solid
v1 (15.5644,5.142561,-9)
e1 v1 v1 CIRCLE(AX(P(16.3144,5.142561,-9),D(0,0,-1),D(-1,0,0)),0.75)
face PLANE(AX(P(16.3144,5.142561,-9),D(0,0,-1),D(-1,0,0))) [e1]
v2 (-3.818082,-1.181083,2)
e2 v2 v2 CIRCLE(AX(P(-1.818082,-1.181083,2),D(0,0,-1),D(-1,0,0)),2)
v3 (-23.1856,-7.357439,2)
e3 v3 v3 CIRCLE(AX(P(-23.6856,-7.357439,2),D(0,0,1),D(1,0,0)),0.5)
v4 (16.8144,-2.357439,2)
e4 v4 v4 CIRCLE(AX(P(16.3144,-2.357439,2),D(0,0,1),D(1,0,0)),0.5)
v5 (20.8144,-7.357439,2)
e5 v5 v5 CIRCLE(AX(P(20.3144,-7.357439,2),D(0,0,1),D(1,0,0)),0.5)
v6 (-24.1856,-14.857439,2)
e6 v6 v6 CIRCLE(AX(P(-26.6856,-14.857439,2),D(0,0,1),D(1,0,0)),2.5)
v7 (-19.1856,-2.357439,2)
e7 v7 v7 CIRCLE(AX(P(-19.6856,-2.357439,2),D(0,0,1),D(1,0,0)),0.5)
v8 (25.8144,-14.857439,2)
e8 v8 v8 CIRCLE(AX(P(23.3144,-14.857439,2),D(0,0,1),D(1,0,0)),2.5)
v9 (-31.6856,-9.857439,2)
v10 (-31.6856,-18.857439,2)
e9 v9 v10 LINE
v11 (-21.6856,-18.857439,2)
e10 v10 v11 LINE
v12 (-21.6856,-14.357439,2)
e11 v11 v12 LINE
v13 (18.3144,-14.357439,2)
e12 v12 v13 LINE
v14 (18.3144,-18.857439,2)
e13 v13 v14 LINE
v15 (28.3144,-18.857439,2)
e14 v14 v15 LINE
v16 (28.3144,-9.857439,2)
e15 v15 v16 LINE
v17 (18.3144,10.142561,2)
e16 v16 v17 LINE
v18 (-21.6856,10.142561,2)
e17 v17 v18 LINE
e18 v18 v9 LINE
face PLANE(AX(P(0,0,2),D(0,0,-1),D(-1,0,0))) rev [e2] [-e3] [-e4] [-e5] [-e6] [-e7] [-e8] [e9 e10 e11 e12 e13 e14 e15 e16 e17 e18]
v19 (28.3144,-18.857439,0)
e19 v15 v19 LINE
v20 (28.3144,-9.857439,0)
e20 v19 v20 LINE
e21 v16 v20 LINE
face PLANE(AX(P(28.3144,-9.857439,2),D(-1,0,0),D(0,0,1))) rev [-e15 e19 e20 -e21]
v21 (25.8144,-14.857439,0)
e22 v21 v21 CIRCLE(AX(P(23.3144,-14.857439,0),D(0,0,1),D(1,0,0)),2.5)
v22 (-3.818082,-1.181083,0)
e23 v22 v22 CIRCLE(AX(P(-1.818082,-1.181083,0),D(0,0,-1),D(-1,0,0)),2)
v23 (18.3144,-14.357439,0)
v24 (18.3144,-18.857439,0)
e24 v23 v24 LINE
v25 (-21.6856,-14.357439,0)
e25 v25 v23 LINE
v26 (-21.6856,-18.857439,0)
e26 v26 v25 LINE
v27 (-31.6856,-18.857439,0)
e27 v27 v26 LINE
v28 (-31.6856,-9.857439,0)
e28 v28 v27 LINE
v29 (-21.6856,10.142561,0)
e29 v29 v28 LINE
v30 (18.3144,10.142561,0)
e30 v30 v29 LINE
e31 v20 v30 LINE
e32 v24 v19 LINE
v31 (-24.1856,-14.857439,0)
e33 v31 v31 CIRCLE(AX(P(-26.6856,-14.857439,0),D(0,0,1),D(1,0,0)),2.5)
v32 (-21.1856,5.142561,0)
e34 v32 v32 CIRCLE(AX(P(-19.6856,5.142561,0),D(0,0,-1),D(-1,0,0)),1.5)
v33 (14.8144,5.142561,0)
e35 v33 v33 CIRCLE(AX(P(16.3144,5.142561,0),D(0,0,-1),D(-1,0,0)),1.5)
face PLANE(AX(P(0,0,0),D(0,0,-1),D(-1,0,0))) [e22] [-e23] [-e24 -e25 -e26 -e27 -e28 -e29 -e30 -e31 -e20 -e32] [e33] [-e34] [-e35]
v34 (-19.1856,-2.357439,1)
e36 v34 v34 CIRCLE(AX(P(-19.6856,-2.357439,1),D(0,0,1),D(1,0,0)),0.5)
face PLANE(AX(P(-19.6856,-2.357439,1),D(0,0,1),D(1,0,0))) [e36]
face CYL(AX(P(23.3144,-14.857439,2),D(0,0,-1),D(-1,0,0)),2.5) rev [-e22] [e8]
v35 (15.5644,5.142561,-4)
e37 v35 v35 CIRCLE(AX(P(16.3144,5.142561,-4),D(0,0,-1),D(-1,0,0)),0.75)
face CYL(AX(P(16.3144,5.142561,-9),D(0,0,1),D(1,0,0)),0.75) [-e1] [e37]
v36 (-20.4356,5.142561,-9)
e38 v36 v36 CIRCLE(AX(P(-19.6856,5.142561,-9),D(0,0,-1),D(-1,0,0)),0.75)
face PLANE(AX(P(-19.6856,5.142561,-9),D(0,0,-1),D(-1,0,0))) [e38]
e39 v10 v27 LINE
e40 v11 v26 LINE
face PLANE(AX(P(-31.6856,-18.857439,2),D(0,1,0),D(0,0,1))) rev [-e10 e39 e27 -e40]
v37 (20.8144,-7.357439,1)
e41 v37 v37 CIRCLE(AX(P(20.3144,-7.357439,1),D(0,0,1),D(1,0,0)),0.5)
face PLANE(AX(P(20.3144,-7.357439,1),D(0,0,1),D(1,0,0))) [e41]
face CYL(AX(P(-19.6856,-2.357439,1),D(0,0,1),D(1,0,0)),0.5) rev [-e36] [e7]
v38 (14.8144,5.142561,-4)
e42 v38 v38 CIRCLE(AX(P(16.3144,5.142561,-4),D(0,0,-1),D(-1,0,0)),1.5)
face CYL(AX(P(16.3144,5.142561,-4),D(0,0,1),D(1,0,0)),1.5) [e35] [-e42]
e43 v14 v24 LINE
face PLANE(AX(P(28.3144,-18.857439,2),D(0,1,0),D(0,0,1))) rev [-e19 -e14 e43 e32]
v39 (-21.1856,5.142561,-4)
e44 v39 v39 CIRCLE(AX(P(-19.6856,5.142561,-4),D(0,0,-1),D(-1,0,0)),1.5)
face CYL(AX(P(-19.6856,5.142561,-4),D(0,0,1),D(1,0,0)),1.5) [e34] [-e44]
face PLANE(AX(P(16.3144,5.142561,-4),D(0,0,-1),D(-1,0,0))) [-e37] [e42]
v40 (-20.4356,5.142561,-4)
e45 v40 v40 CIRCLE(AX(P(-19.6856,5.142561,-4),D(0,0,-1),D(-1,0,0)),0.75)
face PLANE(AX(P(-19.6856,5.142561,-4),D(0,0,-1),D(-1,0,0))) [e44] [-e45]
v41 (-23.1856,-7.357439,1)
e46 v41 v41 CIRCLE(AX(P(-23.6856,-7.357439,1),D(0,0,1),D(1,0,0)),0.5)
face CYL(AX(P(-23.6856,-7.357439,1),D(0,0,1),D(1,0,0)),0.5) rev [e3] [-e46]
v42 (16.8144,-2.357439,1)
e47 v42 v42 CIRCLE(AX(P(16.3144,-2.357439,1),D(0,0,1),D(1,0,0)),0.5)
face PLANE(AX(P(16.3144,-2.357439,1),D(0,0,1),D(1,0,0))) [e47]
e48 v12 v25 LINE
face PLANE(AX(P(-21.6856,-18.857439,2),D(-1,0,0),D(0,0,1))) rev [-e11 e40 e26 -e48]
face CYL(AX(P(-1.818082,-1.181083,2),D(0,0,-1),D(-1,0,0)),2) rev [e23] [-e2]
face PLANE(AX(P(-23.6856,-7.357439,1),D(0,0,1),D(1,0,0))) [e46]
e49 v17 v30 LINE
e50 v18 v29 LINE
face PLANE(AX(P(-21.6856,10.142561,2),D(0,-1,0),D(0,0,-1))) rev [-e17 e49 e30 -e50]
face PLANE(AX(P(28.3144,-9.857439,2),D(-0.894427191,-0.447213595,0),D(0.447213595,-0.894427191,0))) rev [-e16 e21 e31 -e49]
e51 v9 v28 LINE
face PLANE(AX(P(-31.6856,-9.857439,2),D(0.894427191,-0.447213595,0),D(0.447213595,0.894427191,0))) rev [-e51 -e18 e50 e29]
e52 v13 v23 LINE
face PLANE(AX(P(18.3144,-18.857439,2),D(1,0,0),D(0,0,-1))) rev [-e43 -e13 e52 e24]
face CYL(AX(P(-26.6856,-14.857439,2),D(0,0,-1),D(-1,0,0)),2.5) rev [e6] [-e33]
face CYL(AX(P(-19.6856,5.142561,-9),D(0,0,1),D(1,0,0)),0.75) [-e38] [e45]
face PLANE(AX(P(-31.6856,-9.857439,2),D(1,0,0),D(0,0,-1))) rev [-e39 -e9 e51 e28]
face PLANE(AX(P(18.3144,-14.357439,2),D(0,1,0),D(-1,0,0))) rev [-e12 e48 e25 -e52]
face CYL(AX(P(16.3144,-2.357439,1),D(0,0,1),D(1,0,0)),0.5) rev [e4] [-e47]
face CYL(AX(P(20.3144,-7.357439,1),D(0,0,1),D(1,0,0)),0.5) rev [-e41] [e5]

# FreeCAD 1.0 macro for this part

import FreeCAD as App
import Part
import Sketcher

V = App.Vector
Q = App.Units.Quantity


def add_polygon(sketch, points):
    """Adds a closed chain of lines whose ends are joined by coincident constraints."""
    first, n = sketch.GeometryCount, len(points)
    for a, b in zip(points, points[1:] + points[:1]):
        sketch.addGeometry(Part.LineSegment(App.Vector(*a, 0), App.Vector(*b, 0)), False)
    for i in range(n):
        sketch.addConstraint(Sketcher.Constraint("Coincident", first + i, 2, first + (i + 1) % n, 1))

doc = App.newDocument("Part")
body = doc.addObject("PartDesign::Body", "Body")

# Sketch on XY plane
sketch1 = body.newObject("Sketcher::SketchObject", "Sketch")
sketch1.AttachmentSupport = (doc.getObject("XY_Plane"), [""])
sketch1.MapMode = "FlatFace"
add_polygon(sketch1, [(18, 10), (-22, 10), (-32, -10), (-32, -19), (-22, -19), (-22, -10), (18, -10), (18, -19), (28, -19), (28, -10)])  # lines 0-9
sketch1.addConstraint(Sketcher.Constraint("Horizontal", 0))
sketch1.addConstraint(Sketcher.Constraint("Vertical", 2))
sketch1.addConstraint(Sketcher.Constraint("Horizontal", 3))
sketch1.addConstraint(Sketcher.Constraint("Vertical", 4))
sketch1.addConstraint(Sketcher.Constraint("Horizontal", 5))
sketch1.addConstraint(Sketcher.Constraint("Vertical", 6))
sketch1.addConstraint(Sketcher.Constraint("Horizontal", 7))
sketch1.addConstraint(Sketcher.Constraint("Vertical", 8))
sketch1.addConstraint(Sketcher.Constraint("Horizontal", 1, 2, 4, 2))
sketch1.addConstraint(Sketcher.Constraint("Horizontal", 3, 2, 6, 2))
sketch1.addConstraint(Sketcher.Constraint("Horizontal", 5, 2, 8, 2))
sketch1.addConstraint(Sketcher.Constraint("Vertical", 0, 2, 3, 2))
sketch1.addConstraint(Sketcher.Constraint("Vertical", 6, 2, 9, 2))
sketch1.addConstraint(Sketcher.Constraint("Equal", 3, 7))
sketch1.addConstraint(Sketcher.Constraint("DistanceX", 0, 2, 0, 1, Q("40 mm")))
sketch1.addConstraint(Sketcher.Constraint("DistanceX", 3, 1, 3, 2, Q("10 mm")))
sketch1.addConstraint(Sketcher.Constraint("DistanceY", 2, 2, 2, 1, Q("9 mm")))
sketch1.addConstraint(Sketcher.Constraint("DistanceY", 1, 2, 0, 2, Q("20 mm")))
sketch1.addConstraint(Sketcher.Constraint("DistanceX", 0, 2, -1, 1, Q("21.6856 mm")))
sketch1.addConstraint(Sketcher.Constraint("DistanceY", -1, 1, 0, 2, Q("10.142561 mm")))
pad1 = body.newObject("PartDesign::Pad", "Pad")
pad1.Profile = sketch1
pad1.Length = 2

# Sketch on XY plane
sketch2 = body.newObject("Sketcher::SketchObject", "Sketch001")
sketch2.AttachmentSupport = (doc.getObject("XY_Plane"), [""])
sketch2.MapMode = "FlatFace"
sketch2.addGeometry(Part.Circle(V(-26.7, -14.9, 0), V(0, 0, 1), 2.5), False)
sketch2.addGeometry(Part.Circle(V(23.3, -14.9, 0), V(0, 0, 1), 2.5), False)
sketch2.addConstraint(Sketcher.Constraint("Equal", 0, 1))
sketch2.addConstraint(Sketcher.Constraint("Horizontal", 0, 3, 1, 3))
sketch2.addConstraint(Sketcher.Constraint("Diameter", 0, Q("5 mm")))
sketch2.addConstraint(Sketcher.Constraint("DistanceX", 0, 3, 1, 3, Q("50 mm")))
sketch2.addConstraint(Sketcher.Constraint("DistanceX", 0, 3, -1, 1, Q("26.6856 mm")))
sketch2.addConstraint(Sketcher.Constraint("DistanceY", 0, 3, -1, 1, Q("14.857439 mm")))
pocket1 = body.newObject("PartDesign::Pocket", "Pocket")
pocket1.Profile = sketch2
pocket1.Type = "ThroughAll"
pocket1.Reversed = True

# Sketch on XY plane
sketch3 = body.newObject("Sketcher::SketchObject", "Sketch002")
sketch3.AttachmentSupport = (doc.getObject("XY_Plane"), [""])
sketch3.MapMode = "FlatFace"
sketch3.addGeometry(Part.Circle(V(16.3, 5.1, 0), V(0, 0, 1), 1.5), False)
sketch3.addGeometry(Part.Circle(V(-19.7, 5.1, 0), V(0, 0, 1), 1.5), False)
sketch3.addConstraint(Sketcher.Constraint("Equal", 0, 1))
sketch3.addConstraint(Sketcher.Constraint("Horizontal", 0, 3, 1, 3))
sketch3.addConstraint(Sketcher.Constraint("Diameter", 0, Q("3 mm")))
sketch3.addConstraint(Sketcher.Constraint("DistanceX", 1, 3, 0, 3, Q("36 mm")))
sketch3.addConstraint(Sketcher.Constraint("DistanceX", -1, 1, 0, 3, Q("16.3144 mm")))
sketch3.addConstraint(Sketcher.Constraint("DistanceY", -1, 1, 0, 3, Q("5.142561 mm")))
pad2 = body.newObject("PartDesign::Pad", "Pad001")
pad2.Profile = sketch3
pad2.Length = 4
pad2.Reversed = True

# Sketch on XY plane
sketch4 = body.newObject("Sketcher::SketchObject", "Sketch003")
sketch4.AttachmentSupport = (doc.getObject("XY_Plane"), [""])
sketch4.MapMode = "FlatFace"
sketch4.AttachmentOffset = App.Placement(V(0, 0, -4), App.Rotation())
sketch4.addGeometry(Part.Circle(V(16.3, 5.1, 0), V(0, 0, 1), 0.8), False)
sketch4.addGeometry(Part.Circle(V(-19.7, 5.1, 0), V(0, 0, 1), 0.8), False)
sketch4.addConstraint(Sketcher.Constraint("Equal", 0, 1))
sketch4.addConstraint(Sketcher.Constraint("Horizontal", 0, 3, 1, 3))
sketch4.addConstraint(Sketcher.Constraint("Diameter", 0, Q("1.5 mm")))
sketch4.addConstraint(Sketcher.Constraint("DistanceX", 1, 3, 0, 3, Q("36 mm")))
sketch4.addConstraint(Sketcher.Constraint("DistanceX", -1, 1, 0, 3, Q("16.3144 mm")))
sketch4.addConstraint(Sketcher.Constraint("DistanceY", -1, 1, 0, 3, Q("5.142561 mm")))
pad3 = body.newObject("PartDesign::Pad", "Pad002")
pad3.Profile = sketch4
pad3.Length = 5
pad3.Reversed = True

# Sketch on XY plane
sketch5 = body.newObject("Sketcher::SketchObject", "Sketch004")
sketch5.AttachmentSupport = (doc.getObject("XY_Plane"), [""])
sketch5.MapMode = "FlatFace"
add_polygon(sketch5, [(-21.7, -9.9), (-21.7, -14.4), (18.3, -14.4), (18.3, -9.9)])  # lines 0-3
sketch5.addConstraint(Sketcher.Constraint("Vertical", 0))
sketch5.addConstraint(Sketcher.Constraint("Horizontal", 1))
sketch5.addConstraint(Sketcher.Constraint("Vertical", 2))
sketch5.addConstraint(Sketcher.Constraint("Horizontal", 3))
sketch5.addConstraint(Sketcher.Constraint("DistanceX", 1, 1, 1, 2, Q("40 mm")))
sketch5.addConstraint(Sketcher.Constraint("DistanceY", 0, 2, 0, 1, Q("4.5 mm")))
sketch5.addConstraint(Sketcher.Constraint("DistanceX", 0, 2, -1, 1, Q("21.6856 mm")))
sketch5.addConstraint(Sketcher.Constraint("DistanceY", 0, 2, -1, 1, Q("14.357439 mm")))
pad4 = body.newObject("PartDesign::Pad", "Pad003")
pad4.Profile = sketch5
pad4.Length = 2

# Sketch on XY plane
sketch6 = body.newObject("Sketcher::SketchObject", "Sketch005")
sketch6.AttachmentSupport = (doc.getObject("XY_Plane"), [""])
sketch6.MapMode = "FlatFace"
sketch6.AttachmentOffset = App.Placement(V(0, 0, 2), App.Rotation())
sketch6.addGeometry(Part.Circle(V(-23.7, -7.4, 0), V(0, 0, 1), 0.5), False)
sketch6.addGeometry(Part.Circle(V(20.3, -7.4, 0), V(0, 0, 1), 0.5), False)
sketch6.addGeometry(Part.Circle(V(-19.7, -2.4, 0), V(0, 0, 1), 0.5), False)
sketch6.addGeometry(Part.Circle(V(16.3, -2.4, 0), V(0, 0, 1), 0.5), False)
sketch6.addConstraint(Sketcher.Constraint("Equal", 0, 1))
sketch6.addConstraint(Sketcher.Constraint("Equal", 1, 2))
sketch6.addConstraint(Sketcher.Constraint("Equal", 2, 3))
sketch6.addConstraint(Sketcher.Constraint("Horizontal", 0, 3, 1, 3))
sketch6.addConstraint(Sketcher.Constraint("Horizontal", 2, 3, 3, 3))
sketch6.addConstraint(Sketcher.Constraint("Diameter", 0, Q("1 mm")))
sketch6.addConstraint(Sketcher.Constraint("DistanceX", 0, 3, 1, 3, Q("44 mm")))
sketch6.addConstraint(Sketcher.Constraint("DistanceX", 0, 3, 2, 3, Q("4 mm")))
sketch6.addConstraint(Sketcher.Constraint("DistanceY", 0, 3, 2, 3, Q("5 mm")))
sketch6.addConstraint(Sketcher.Constraint("DistanceX", 3, 3, 1, 3, Q("4 mm")))
sketch6.addConstraint(Sketcher.Constraint("DistanceX", 0, 3, -1, 1, Q("23.6856 mm")))
sketch6.addConstraint(Sketcher.Constraint("DistanceY", 0, 3, -1, 1, Q("7.357439 mm")))
pocket2 = body.newObject("PartDesign::Pocket", "Pocket001")
pocket2.Profile = sketch6
pocket2.Length = 1

# Sketch on XY plane
sketch7 = body.newObject("Sketcher::SketchObject", "Sketch006")
sketch7.AttachmentSupport = (doc.getObject("XY_Plane"), [""])
sketch7.MapMode = "FlatFace"
sketch7.addGeometry(Part.Circle(V(-1.8, -1.2, 0), V(0, 0, 1), 2), False)
sketch7.addConstraint(Sketcher.Constraint("Diameter", 0, Q("4 mm")))
sketch7.addConstraint(Sketcher.Constraint("DistanceX", 0, 3, -1, 1, Q("1.818082 mm")))
sketch7.addConstraint(Sketcher.Constraint("DistanceY", 0, 3, -1, 1, Q("1.181083 mm")))
pocket3 = body.newObject("PartDesign::Pocket", "Pocket002")
pocket3.Profile = sketch7
pocket3.Type = "ThroughAll"
pocket3.Reversed = True

doc.recompute()
